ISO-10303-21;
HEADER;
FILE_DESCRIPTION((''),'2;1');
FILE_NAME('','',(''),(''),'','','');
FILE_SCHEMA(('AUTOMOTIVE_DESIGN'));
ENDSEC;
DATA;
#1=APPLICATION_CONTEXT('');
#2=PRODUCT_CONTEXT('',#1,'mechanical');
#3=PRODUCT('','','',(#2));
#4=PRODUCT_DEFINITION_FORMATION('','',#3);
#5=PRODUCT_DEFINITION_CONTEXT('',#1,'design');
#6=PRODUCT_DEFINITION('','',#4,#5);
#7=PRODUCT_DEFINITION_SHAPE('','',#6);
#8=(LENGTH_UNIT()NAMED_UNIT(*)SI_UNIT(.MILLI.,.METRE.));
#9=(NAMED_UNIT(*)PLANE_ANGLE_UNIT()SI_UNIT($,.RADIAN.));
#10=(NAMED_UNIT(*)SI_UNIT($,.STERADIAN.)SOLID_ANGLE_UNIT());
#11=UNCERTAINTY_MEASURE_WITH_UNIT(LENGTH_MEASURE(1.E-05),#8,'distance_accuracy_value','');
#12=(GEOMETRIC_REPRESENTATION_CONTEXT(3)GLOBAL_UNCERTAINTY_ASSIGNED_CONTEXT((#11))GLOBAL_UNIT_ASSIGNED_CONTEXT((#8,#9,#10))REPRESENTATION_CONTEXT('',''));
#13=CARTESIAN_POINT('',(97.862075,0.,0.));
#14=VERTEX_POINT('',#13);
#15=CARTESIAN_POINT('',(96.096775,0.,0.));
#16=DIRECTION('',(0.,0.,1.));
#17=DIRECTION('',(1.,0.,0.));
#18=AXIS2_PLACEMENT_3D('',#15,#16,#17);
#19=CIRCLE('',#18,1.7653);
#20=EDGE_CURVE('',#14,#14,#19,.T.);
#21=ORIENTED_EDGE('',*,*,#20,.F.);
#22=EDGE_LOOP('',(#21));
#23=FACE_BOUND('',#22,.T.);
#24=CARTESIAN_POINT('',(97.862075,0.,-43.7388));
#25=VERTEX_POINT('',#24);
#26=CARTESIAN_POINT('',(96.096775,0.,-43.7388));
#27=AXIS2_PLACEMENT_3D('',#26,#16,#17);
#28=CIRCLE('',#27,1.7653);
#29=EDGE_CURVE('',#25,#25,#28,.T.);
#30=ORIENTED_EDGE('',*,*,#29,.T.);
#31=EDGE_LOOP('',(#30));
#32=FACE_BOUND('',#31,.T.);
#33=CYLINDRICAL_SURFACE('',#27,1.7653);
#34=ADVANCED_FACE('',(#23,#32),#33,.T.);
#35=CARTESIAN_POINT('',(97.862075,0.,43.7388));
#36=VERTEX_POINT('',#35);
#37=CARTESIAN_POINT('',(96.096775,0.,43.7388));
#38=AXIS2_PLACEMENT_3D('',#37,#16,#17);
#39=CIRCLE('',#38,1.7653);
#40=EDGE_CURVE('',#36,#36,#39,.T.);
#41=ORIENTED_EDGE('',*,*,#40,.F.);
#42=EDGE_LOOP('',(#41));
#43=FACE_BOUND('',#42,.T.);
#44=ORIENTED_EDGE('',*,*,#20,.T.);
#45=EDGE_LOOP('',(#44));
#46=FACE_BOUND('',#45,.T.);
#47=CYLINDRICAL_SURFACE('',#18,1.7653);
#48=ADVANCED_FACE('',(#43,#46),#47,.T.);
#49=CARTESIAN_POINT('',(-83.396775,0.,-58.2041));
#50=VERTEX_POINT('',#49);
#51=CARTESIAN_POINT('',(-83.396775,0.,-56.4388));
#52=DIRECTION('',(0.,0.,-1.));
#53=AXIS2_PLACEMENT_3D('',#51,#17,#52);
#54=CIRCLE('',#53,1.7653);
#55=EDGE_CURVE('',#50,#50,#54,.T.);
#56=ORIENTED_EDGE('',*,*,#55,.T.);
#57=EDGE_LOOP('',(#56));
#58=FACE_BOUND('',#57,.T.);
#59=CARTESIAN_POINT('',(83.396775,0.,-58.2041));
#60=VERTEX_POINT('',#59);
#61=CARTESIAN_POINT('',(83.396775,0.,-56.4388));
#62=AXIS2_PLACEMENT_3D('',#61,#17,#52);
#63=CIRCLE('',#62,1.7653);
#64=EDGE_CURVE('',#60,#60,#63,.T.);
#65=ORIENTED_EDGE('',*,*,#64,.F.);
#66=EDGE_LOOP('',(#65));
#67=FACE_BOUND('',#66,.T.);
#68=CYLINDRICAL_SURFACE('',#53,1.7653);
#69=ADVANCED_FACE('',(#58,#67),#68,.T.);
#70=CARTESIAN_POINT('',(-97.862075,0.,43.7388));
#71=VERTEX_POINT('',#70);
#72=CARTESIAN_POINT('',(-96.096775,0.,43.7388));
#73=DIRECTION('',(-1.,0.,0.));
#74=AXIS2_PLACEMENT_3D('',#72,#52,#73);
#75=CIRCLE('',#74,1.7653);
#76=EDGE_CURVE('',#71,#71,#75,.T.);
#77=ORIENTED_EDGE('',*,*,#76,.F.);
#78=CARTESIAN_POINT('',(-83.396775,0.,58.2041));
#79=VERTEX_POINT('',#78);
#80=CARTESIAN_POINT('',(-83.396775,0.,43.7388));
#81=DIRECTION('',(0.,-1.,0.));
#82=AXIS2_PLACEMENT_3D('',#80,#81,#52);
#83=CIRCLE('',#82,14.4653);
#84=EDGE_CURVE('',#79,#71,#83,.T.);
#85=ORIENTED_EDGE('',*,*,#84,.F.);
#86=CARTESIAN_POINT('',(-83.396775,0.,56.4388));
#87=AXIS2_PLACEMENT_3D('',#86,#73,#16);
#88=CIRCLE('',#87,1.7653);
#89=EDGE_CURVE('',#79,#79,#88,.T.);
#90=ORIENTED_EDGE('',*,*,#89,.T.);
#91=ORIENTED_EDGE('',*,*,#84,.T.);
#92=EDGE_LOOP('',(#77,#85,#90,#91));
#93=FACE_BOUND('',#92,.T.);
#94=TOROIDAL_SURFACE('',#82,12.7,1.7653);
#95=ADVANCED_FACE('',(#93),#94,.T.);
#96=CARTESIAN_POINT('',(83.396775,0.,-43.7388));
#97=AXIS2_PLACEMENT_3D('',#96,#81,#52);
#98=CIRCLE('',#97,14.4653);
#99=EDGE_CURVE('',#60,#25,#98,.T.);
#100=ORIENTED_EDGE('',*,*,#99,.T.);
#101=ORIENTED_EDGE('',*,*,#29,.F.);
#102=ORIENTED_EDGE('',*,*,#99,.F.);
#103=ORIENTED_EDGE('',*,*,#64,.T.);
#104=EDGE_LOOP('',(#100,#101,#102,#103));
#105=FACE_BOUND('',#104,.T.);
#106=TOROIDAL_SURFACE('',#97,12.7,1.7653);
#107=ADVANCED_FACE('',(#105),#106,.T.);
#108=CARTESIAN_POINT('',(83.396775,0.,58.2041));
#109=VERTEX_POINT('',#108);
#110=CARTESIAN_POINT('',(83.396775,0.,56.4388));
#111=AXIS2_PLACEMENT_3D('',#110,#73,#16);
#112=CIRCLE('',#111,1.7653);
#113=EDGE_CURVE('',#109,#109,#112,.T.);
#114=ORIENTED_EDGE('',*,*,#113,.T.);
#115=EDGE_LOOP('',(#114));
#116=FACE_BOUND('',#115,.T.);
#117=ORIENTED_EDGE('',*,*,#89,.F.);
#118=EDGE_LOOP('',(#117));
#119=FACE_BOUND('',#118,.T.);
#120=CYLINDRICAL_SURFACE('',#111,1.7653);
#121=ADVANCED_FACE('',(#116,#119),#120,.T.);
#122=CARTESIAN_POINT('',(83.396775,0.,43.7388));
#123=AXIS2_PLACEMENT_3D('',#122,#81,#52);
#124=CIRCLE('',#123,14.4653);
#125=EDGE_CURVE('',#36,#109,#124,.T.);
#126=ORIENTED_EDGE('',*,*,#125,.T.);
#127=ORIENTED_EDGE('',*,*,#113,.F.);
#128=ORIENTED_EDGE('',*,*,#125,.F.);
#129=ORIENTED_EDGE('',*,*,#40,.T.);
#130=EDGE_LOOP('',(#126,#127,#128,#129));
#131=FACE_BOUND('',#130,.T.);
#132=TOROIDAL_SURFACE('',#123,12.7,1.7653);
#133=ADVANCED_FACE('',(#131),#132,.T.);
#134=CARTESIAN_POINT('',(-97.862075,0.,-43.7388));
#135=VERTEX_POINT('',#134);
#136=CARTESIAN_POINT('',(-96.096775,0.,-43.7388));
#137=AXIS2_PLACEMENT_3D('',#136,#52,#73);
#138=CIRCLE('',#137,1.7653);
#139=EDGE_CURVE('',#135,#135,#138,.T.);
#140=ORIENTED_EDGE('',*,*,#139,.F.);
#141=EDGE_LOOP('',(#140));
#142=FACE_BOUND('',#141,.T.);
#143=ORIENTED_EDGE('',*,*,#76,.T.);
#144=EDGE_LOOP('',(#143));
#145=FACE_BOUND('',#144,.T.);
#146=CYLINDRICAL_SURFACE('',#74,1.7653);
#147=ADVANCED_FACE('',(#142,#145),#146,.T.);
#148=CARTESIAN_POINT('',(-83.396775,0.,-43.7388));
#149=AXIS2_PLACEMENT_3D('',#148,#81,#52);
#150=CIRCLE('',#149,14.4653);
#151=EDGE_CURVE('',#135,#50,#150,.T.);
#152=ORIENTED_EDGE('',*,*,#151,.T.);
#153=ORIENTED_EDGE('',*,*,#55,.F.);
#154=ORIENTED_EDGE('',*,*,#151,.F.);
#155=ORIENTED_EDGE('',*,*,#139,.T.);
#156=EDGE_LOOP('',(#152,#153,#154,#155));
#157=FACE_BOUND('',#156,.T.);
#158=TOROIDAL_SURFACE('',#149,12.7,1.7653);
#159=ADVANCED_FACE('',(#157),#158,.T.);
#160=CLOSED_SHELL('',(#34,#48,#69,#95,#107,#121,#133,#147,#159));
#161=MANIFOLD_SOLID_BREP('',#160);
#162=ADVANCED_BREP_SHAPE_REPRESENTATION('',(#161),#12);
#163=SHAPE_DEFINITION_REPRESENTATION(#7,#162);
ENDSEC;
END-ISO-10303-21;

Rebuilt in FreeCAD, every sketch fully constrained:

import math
import FreeCAD as App
import Part
import Sketcher
Q = App.Units.Quantity

doc = App.newDocument("Part")
params = doc.addObject("Spreadsheet::Sheet", "Params")
for row, (alias, value) in enumerate([
    ("sketch1_diameter", "0.139 in"),
    ("sketch2_radius", "0.5 in"),
    ("sketch2_height", "3.444 in"),
], start=1):
    params.set(f"A{row}", alias)
    params.set(f"B{row}", "=" + value)
    params.setAlias(f"B{row}", alias)

body = doc.addObject("PartDesign::Body", "Body")

sketch1 = body.newObject("Sketcher::SketchObject", "Sketch")
sketch1.AttachmentSupport = (doc.getObject("XY_Plane"), [""])
sketch1.MapMode = "FlatFace"
sketch1.addGeometry(Part.Circle(App.Vector(96.096775, 0, 0), App.Vector(0, 0, 1), 1.7653), False)
sketch1.addConstraint(Sketcher.Constraint("PointOnObject", 0, 3, -1))
sketch1.addConstraint(Sketcher.Constraint("Diameter", 0, Q("0.139 in")))
sketch1.addConstraint(Sketcher.Constraint("DistanceX", -1, 1, 0, 3, 96.096775))
sketch1.setExpression("Constraints[1]", "Params.sketch1_diameter")

sketch2 = body.newObject("Sketcher::SketchObject", "Sketch001")
sketch2.AttachmentSupport = (doc.getObject("XZ_Plane"), [""])
sketch2.MapMode = "FlatFace"
sketch2.addGeometry(Part.LineSegment(App.Vector(83.396775, 56.4388, 0), App.Vector(-83.396775, 56.4388, 0)), False)
sketch2.addGeometry(Part.ArcOfCircle(Part.Circle(App.Vector(-83.396775, 43.7388, 0), App.Vector(0, 0, 1), 12.7), math.radians(90), math.radians(180)), False)
sketch2.addGeometry(Part.LineSegment(App.Vector(-96.096775, 43.7388, 0), App.Vector(-96.096775, -43.7388, 0)), False)
sketch2.addGeometry(Part.ArcOfCircle(Part.Circle(App.Vector(-83.396775, -43.7388, 0), App.Vector(0, 0, 1), 12.7), math.radians(180), math.radians(270)), False)
sketch2.addGeometry(Part.LineSegment(App.Vector(-83.396775, -56.4388, 0), App.Vector(83.396775, -56.4388, 0)), False)
sketch2.addGeometry(Part.ArcOfCircle(Part.Circle(App.Vector(83.396775, -43.7388, 0), App.Vector(0, 0, 1), 12.7), math.radians(-90), math.radians(0)), False)
sketch2.addGeometry(Part.LineSegment(App.Vector(96.096775, -43.7388, 0), App.Vector(96.096775, 43.7388, 0)), False)
sketch2.addGeometry(Part.ArcOfCircle(Part.Circle(App.Vector(83.396775, 43.7388, 0), App.Vector(0, 0, 1), 12.7), math.radians(0), math.radians(90)), False)
sketch2.addConstraint(Sketcher.Constraint("Tangent", 0, 2, 1, 1))
sketch2.addConstraint(Sketcher.Constraint("Tangent", 1, 2, 2, 1))
sketch2.addConstraint(Sketcher.Constraint("Tangent", 2, 2, 3, 1))
sketch2.addConstraint(Sketcher.Constraint("Tangent", 3, 2, 4, 1))
sketch2.addConstraint(Sketcher.Constraint("Tangent", 4, 2, 5, 1))
sketch2.addConstraint(Sketcher.Constraint("Tangent", 5, 2, 6, 1))
sketch2.addConstraint(Sketcher.Constraint("Tangent", 6, 2, 7, 1))
sketch2.addConstraint(Sketcher.Constraint("Tangent", 7, 2, 0, 1))
sketch2.addConstraint(Sketcher.Constraint("Horizontal", 0))
sketch2.addConstraint(Sketcher.Constraint("Vertical", 2))
sketch2.addConstraint(Sketcher.Constraint("Horizontal", 4))
sketch2.addConstraint(Sketcher.Constraint("Vertical", 6))
sketch2.addConstraint(Sketcher.Constraint("Equal", 1, 3))
sketch2.addConstraint(Sketcher.Constraint("Equal", 3, 5))
sketch2.addConstraint(Sketcher.Constraint("Equal", 5, 7))
sketch2.addConstraint(Sketcher.Constraint("Symmetric", 1, 3, 5, 3, -1, 1))
sketch2.addConstraint(Sketcher.Constraint("Radius", 1, Q("0.5 in")))
sketch2.addConstraint(Sketcher.Constraint("DistanceY", 2, 2, 2, 1, Q("3.444 in")))
sketch2.addConstraint(Sketcher.Constraint("DistanceX", 0, 2, 0, 1, 166.79355))
sketch2.setExpression("Constraints[16]", "Params.sketch2_radius")
sketch2.setExpression("Constraints[17]", "Params.sketch2_height")
doc.recompute()

additivepipe = body.newObject("PartDesign::AdditivePipe", "AdditivePipe")
additivepipe.Profile = sketch1
additivepipe.Spine = (sketch2, ["Edge1", "Edge2", "Edge3", "Edge4", "Edge5", "Edge6", "Edge7", "Edge8"])

doc.recompute()
